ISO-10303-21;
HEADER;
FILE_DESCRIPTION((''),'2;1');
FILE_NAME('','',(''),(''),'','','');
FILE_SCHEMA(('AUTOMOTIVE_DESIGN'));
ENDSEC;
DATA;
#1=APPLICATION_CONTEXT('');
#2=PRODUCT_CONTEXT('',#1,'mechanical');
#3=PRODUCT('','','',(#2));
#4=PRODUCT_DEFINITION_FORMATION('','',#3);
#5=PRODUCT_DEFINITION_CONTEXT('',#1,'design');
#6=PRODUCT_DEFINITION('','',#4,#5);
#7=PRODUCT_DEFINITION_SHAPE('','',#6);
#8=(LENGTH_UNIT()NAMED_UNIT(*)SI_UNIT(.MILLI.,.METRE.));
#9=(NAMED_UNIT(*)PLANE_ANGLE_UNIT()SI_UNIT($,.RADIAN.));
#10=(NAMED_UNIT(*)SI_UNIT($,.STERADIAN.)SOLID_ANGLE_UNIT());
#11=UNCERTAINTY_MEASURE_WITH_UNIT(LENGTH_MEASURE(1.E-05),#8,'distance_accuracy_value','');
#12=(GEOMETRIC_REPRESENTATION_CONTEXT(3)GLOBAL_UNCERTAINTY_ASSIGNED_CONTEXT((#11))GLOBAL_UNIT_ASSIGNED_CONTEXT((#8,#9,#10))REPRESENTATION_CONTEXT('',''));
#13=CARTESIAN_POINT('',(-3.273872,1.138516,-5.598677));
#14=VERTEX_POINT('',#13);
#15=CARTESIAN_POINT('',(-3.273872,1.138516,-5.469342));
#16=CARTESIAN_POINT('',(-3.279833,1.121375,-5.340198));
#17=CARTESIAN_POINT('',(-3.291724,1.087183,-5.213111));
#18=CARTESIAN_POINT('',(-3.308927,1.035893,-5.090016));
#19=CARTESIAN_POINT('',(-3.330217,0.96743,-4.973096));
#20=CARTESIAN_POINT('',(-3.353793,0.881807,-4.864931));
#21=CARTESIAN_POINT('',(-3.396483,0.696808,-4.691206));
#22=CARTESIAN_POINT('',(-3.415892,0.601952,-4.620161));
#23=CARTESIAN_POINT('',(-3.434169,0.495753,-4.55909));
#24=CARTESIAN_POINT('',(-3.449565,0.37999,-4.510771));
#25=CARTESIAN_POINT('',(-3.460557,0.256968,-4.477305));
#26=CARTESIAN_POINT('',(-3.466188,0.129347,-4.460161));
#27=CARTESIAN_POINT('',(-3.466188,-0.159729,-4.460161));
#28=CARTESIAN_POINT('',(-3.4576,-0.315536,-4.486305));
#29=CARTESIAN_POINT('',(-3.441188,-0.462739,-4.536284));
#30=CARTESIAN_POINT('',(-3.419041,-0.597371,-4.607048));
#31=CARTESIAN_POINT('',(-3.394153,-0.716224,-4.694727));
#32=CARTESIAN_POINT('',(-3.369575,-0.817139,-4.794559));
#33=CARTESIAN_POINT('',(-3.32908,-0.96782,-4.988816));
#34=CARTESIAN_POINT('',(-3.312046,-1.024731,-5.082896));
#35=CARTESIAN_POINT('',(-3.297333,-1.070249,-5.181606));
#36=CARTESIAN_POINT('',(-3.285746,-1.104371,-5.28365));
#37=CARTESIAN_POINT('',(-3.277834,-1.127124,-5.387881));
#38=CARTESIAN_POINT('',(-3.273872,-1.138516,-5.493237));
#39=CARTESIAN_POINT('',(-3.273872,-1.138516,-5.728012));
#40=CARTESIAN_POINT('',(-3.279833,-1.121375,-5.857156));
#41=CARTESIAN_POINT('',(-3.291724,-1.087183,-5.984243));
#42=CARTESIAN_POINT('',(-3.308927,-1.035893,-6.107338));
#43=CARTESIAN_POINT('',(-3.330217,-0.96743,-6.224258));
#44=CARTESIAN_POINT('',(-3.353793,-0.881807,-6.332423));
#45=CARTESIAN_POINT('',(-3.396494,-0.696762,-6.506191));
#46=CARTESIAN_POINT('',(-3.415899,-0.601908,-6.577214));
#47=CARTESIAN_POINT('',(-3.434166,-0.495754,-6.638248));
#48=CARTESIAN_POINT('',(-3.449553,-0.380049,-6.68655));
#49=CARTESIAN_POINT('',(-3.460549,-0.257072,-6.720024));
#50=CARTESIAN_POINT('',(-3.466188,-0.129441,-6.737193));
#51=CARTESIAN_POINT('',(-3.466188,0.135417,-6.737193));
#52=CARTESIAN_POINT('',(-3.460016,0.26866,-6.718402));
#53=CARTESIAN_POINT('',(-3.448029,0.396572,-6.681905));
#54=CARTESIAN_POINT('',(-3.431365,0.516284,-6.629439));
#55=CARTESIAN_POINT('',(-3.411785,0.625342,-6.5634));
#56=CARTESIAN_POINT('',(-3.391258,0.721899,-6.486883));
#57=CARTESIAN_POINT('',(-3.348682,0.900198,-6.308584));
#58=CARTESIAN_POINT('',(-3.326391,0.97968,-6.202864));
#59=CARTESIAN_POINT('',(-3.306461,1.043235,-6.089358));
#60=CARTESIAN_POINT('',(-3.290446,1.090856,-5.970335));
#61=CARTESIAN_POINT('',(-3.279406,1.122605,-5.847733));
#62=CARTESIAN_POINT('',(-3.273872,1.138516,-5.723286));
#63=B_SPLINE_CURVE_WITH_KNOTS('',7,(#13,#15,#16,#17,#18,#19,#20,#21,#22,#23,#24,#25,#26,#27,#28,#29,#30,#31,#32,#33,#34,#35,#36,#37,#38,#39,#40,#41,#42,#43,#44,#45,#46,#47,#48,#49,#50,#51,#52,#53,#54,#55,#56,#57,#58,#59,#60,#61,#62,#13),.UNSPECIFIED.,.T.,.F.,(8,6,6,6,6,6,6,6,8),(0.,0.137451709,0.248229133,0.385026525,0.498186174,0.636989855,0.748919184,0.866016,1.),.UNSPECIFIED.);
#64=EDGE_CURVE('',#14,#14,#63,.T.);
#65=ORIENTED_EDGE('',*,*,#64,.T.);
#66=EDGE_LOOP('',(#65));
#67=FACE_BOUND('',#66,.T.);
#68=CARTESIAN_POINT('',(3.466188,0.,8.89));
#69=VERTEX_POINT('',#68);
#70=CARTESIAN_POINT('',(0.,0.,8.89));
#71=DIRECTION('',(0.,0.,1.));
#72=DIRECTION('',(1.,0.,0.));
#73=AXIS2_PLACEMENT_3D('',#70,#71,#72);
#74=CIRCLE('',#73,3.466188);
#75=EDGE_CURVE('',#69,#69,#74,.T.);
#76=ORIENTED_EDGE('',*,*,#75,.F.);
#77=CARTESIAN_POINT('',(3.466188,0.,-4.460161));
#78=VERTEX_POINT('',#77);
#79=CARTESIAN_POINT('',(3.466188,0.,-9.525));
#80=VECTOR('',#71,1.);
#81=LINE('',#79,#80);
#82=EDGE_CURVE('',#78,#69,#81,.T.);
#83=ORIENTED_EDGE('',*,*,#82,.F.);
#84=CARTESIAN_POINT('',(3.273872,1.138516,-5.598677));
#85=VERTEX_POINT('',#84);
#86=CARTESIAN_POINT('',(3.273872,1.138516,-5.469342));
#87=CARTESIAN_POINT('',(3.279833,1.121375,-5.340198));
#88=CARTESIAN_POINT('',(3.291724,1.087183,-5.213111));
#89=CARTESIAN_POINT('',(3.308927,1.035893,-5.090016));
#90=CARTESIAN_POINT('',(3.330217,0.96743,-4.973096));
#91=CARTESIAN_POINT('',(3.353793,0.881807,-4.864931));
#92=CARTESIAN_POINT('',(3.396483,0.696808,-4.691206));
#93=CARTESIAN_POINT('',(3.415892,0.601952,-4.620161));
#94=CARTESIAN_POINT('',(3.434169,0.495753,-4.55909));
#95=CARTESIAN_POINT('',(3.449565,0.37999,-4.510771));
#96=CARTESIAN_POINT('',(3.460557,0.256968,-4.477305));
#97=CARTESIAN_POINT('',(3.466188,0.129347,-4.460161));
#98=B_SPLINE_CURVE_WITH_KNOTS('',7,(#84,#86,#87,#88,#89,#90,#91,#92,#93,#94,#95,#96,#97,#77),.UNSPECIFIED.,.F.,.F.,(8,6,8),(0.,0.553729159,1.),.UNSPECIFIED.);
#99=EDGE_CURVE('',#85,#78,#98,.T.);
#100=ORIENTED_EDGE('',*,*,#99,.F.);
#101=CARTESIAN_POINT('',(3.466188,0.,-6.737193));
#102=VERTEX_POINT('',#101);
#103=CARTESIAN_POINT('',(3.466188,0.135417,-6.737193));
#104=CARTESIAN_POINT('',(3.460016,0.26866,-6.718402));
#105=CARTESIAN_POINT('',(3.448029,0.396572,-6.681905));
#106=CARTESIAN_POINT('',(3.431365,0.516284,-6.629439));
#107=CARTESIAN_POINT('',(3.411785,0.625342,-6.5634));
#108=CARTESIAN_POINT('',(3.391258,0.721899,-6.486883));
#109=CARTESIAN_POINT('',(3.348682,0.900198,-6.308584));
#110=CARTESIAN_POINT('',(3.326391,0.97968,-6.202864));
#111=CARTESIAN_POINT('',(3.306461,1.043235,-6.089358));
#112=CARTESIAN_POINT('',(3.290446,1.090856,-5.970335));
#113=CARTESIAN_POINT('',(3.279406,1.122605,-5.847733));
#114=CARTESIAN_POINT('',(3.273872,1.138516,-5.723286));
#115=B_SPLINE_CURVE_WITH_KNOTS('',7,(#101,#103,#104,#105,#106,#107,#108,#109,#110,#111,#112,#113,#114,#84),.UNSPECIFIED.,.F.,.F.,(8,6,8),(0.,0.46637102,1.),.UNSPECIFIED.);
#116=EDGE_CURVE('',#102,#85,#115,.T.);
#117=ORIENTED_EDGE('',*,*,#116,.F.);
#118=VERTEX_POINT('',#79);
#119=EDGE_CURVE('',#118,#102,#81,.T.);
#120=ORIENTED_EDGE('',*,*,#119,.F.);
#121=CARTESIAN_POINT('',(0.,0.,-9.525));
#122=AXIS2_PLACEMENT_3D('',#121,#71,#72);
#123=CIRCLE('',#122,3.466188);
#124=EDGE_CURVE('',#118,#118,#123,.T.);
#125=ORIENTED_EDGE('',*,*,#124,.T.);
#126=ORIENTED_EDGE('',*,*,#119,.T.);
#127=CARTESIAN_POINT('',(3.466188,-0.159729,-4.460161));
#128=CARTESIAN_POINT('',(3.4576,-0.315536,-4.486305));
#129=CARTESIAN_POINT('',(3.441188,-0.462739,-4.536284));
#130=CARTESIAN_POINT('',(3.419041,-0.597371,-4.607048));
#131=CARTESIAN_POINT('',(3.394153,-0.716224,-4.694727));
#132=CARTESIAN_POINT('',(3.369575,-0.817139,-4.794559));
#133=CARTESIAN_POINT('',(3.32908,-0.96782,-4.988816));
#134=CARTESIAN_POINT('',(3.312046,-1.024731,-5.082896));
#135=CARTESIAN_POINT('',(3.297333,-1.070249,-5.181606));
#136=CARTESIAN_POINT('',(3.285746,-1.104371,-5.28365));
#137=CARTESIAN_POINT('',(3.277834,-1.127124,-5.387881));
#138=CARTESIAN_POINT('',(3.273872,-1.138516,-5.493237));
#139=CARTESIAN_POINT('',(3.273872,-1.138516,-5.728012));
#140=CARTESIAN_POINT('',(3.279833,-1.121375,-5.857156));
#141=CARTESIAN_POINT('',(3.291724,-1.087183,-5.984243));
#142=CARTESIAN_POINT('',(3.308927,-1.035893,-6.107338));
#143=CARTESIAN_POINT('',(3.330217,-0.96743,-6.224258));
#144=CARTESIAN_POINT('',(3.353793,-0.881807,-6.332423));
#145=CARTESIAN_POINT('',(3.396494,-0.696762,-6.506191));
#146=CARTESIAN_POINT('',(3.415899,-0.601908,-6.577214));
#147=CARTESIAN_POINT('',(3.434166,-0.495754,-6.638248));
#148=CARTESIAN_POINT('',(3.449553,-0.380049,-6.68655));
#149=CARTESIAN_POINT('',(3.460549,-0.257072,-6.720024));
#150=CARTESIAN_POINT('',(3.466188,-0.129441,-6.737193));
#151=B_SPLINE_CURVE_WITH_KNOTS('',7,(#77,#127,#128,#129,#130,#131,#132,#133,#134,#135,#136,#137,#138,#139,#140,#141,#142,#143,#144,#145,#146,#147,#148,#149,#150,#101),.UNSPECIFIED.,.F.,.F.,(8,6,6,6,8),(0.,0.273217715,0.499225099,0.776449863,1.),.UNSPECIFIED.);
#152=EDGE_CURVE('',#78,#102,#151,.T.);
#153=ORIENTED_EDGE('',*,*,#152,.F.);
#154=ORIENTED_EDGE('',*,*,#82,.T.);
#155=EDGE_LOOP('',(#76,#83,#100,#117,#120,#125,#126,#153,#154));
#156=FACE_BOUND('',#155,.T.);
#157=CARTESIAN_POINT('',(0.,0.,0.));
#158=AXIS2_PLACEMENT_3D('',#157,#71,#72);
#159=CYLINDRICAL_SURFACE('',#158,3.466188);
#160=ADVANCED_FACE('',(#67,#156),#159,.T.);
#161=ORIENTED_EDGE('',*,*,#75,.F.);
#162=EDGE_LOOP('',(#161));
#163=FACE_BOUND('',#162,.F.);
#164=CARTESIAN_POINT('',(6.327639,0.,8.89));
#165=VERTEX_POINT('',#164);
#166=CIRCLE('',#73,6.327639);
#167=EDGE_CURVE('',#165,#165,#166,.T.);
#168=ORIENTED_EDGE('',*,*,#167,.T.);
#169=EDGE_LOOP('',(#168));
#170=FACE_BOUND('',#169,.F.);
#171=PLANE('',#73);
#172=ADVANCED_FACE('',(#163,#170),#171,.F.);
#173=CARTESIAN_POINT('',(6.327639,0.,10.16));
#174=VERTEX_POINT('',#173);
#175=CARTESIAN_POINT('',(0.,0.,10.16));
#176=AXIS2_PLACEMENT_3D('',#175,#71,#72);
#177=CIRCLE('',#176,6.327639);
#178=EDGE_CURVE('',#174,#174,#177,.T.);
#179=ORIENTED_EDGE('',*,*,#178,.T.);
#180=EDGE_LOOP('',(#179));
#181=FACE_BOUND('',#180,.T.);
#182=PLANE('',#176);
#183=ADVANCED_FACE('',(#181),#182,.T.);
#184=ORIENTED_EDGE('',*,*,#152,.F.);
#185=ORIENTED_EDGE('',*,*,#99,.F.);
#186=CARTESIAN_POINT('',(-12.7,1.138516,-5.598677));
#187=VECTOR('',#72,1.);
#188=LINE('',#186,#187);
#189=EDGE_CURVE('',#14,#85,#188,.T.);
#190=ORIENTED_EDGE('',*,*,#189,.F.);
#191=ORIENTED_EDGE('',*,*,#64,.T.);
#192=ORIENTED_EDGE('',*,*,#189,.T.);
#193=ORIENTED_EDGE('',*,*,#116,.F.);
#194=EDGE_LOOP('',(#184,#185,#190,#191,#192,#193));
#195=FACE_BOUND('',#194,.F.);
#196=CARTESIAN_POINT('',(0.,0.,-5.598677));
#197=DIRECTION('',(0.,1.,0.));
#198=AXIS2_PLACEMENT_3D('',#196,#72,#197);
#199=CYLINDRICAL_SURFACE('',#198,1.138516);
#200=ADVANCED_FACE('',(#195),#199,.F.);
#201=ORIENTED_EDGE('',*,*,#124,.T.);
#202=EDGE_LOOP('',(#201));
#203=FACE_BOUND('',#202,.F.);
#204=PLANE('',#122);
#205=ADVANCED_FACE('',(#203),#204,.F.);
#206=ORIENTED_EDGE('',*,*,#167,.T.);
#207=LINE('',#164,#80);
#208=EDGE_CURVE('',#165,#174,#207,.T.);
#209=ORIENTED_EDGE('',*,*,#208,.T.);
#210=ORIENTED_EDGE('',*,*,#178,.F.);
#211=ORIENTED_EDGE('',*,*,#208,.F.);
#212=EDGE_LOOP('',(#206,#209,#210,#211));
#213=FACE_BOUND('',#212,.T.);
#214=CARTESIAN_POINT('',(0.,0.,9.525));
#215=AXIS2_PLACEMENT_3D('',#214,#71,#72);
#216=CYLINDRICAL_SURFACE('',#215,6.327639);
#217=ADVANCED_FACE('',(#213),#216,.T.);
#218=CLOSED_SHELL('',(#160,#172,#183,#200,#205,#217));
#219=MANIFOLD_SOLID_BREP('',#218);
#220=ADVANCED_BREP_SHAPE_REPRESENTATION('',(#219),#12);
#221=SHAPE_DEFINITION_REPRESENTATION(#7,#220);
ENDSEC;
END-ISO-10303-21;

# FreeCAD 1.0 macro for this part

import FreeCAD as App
import Part
import Sketcher
Q = App.Units.Quantity

doc = App.newDocument("Part")
body = doc.addObject("PartDesign::Body", "Body")

# Sketch on XY plane
sketch1 = body.newObject("Sketcher::SketchObject", "Sketch")
sketch1.AttachmentSupport = (doc.getObject("XY_Plane"), [""])
sketch1.MapMode = "FlatFace"
sketch1.addGeometry(Part.Circle(App.Vector(0, 0, 0), App.Vector(0, 0, 1), 3.466188), False)
sketch1.addConstraint(Sketcher.Constraint("Coincident", 0, 3, -1, 1))
sketch1.addConstraint(Sketcher.Constraint("Diameter", 0, Q("6.932376 mm")))
pad1 = body.newObject("PartDesign::Pad", "Pad")
pad1.Profile = sketch1
pad1.Length = Q("0.75 in")
pad1.Midplane = True

# Sketch on XY plane
sketch2 = body.newObject("Sketcher::SketchObject", "Sketch001")
sketch2.AttachmentSupport = (doc.getObject("XY_Plane"), [""])
sketch2.MapMode = "FlatFace"
sketch2.AttachmentOffset = App.Placement(App.Vector(0, 0, 0.375 * 25.4), App.Rotation())
sketch2.addGeometry(Part.Circle(App.Vector(0, 0, 0), App.Vector(0, 0, 1), 6.327639), False)
sketch2.addConstraint(Sketcher.Constraint("Coincident", 0, 3, -1, 1))
sketch2.addConstraint(Sketcher.Constraint("Diameter", 0, Q("12.655278 mm")))
pad2 = body.newObject("PartDesign::Pad", "Pad001")
pad2.Profile = sketch2
pad2.Length = Q("0.05 in")
pad2.Midplane = True

# Sketch on YZ plane
sketch3 = body.newObject("Sketcher::SketchObject", "Sketch002")
sketch3.AttachmentSupport = (doc.getObject("YZ_Plane"), [""])
sketch3.MapMode = "FlatFace"
sketch3.addGeometry(Part.Circle(App.Vector(0, -5.598677, 0), App.Vector(0, 0, 1), 1.138516), False)
sketch3.addConstraint(Sketcher.Constraint("PointOnObject", 0, 3, -2))
sketch3.addConstraint(Sketcher.Constraint("Diameter", 0, Q("2.277032 mm")))
sketch3.addConstraint(Sketcher.Constraint("DistanceY", 0, 3, -1, 1, Q("5.598677 mm")))
pocket1 = body.newObject("PartDesign::Pocket", "Pocket")
pocket1.Profile = sketch3
pocket1.Length = Q("1 in")
pocket1.Midplane = True

doc.recompute()
